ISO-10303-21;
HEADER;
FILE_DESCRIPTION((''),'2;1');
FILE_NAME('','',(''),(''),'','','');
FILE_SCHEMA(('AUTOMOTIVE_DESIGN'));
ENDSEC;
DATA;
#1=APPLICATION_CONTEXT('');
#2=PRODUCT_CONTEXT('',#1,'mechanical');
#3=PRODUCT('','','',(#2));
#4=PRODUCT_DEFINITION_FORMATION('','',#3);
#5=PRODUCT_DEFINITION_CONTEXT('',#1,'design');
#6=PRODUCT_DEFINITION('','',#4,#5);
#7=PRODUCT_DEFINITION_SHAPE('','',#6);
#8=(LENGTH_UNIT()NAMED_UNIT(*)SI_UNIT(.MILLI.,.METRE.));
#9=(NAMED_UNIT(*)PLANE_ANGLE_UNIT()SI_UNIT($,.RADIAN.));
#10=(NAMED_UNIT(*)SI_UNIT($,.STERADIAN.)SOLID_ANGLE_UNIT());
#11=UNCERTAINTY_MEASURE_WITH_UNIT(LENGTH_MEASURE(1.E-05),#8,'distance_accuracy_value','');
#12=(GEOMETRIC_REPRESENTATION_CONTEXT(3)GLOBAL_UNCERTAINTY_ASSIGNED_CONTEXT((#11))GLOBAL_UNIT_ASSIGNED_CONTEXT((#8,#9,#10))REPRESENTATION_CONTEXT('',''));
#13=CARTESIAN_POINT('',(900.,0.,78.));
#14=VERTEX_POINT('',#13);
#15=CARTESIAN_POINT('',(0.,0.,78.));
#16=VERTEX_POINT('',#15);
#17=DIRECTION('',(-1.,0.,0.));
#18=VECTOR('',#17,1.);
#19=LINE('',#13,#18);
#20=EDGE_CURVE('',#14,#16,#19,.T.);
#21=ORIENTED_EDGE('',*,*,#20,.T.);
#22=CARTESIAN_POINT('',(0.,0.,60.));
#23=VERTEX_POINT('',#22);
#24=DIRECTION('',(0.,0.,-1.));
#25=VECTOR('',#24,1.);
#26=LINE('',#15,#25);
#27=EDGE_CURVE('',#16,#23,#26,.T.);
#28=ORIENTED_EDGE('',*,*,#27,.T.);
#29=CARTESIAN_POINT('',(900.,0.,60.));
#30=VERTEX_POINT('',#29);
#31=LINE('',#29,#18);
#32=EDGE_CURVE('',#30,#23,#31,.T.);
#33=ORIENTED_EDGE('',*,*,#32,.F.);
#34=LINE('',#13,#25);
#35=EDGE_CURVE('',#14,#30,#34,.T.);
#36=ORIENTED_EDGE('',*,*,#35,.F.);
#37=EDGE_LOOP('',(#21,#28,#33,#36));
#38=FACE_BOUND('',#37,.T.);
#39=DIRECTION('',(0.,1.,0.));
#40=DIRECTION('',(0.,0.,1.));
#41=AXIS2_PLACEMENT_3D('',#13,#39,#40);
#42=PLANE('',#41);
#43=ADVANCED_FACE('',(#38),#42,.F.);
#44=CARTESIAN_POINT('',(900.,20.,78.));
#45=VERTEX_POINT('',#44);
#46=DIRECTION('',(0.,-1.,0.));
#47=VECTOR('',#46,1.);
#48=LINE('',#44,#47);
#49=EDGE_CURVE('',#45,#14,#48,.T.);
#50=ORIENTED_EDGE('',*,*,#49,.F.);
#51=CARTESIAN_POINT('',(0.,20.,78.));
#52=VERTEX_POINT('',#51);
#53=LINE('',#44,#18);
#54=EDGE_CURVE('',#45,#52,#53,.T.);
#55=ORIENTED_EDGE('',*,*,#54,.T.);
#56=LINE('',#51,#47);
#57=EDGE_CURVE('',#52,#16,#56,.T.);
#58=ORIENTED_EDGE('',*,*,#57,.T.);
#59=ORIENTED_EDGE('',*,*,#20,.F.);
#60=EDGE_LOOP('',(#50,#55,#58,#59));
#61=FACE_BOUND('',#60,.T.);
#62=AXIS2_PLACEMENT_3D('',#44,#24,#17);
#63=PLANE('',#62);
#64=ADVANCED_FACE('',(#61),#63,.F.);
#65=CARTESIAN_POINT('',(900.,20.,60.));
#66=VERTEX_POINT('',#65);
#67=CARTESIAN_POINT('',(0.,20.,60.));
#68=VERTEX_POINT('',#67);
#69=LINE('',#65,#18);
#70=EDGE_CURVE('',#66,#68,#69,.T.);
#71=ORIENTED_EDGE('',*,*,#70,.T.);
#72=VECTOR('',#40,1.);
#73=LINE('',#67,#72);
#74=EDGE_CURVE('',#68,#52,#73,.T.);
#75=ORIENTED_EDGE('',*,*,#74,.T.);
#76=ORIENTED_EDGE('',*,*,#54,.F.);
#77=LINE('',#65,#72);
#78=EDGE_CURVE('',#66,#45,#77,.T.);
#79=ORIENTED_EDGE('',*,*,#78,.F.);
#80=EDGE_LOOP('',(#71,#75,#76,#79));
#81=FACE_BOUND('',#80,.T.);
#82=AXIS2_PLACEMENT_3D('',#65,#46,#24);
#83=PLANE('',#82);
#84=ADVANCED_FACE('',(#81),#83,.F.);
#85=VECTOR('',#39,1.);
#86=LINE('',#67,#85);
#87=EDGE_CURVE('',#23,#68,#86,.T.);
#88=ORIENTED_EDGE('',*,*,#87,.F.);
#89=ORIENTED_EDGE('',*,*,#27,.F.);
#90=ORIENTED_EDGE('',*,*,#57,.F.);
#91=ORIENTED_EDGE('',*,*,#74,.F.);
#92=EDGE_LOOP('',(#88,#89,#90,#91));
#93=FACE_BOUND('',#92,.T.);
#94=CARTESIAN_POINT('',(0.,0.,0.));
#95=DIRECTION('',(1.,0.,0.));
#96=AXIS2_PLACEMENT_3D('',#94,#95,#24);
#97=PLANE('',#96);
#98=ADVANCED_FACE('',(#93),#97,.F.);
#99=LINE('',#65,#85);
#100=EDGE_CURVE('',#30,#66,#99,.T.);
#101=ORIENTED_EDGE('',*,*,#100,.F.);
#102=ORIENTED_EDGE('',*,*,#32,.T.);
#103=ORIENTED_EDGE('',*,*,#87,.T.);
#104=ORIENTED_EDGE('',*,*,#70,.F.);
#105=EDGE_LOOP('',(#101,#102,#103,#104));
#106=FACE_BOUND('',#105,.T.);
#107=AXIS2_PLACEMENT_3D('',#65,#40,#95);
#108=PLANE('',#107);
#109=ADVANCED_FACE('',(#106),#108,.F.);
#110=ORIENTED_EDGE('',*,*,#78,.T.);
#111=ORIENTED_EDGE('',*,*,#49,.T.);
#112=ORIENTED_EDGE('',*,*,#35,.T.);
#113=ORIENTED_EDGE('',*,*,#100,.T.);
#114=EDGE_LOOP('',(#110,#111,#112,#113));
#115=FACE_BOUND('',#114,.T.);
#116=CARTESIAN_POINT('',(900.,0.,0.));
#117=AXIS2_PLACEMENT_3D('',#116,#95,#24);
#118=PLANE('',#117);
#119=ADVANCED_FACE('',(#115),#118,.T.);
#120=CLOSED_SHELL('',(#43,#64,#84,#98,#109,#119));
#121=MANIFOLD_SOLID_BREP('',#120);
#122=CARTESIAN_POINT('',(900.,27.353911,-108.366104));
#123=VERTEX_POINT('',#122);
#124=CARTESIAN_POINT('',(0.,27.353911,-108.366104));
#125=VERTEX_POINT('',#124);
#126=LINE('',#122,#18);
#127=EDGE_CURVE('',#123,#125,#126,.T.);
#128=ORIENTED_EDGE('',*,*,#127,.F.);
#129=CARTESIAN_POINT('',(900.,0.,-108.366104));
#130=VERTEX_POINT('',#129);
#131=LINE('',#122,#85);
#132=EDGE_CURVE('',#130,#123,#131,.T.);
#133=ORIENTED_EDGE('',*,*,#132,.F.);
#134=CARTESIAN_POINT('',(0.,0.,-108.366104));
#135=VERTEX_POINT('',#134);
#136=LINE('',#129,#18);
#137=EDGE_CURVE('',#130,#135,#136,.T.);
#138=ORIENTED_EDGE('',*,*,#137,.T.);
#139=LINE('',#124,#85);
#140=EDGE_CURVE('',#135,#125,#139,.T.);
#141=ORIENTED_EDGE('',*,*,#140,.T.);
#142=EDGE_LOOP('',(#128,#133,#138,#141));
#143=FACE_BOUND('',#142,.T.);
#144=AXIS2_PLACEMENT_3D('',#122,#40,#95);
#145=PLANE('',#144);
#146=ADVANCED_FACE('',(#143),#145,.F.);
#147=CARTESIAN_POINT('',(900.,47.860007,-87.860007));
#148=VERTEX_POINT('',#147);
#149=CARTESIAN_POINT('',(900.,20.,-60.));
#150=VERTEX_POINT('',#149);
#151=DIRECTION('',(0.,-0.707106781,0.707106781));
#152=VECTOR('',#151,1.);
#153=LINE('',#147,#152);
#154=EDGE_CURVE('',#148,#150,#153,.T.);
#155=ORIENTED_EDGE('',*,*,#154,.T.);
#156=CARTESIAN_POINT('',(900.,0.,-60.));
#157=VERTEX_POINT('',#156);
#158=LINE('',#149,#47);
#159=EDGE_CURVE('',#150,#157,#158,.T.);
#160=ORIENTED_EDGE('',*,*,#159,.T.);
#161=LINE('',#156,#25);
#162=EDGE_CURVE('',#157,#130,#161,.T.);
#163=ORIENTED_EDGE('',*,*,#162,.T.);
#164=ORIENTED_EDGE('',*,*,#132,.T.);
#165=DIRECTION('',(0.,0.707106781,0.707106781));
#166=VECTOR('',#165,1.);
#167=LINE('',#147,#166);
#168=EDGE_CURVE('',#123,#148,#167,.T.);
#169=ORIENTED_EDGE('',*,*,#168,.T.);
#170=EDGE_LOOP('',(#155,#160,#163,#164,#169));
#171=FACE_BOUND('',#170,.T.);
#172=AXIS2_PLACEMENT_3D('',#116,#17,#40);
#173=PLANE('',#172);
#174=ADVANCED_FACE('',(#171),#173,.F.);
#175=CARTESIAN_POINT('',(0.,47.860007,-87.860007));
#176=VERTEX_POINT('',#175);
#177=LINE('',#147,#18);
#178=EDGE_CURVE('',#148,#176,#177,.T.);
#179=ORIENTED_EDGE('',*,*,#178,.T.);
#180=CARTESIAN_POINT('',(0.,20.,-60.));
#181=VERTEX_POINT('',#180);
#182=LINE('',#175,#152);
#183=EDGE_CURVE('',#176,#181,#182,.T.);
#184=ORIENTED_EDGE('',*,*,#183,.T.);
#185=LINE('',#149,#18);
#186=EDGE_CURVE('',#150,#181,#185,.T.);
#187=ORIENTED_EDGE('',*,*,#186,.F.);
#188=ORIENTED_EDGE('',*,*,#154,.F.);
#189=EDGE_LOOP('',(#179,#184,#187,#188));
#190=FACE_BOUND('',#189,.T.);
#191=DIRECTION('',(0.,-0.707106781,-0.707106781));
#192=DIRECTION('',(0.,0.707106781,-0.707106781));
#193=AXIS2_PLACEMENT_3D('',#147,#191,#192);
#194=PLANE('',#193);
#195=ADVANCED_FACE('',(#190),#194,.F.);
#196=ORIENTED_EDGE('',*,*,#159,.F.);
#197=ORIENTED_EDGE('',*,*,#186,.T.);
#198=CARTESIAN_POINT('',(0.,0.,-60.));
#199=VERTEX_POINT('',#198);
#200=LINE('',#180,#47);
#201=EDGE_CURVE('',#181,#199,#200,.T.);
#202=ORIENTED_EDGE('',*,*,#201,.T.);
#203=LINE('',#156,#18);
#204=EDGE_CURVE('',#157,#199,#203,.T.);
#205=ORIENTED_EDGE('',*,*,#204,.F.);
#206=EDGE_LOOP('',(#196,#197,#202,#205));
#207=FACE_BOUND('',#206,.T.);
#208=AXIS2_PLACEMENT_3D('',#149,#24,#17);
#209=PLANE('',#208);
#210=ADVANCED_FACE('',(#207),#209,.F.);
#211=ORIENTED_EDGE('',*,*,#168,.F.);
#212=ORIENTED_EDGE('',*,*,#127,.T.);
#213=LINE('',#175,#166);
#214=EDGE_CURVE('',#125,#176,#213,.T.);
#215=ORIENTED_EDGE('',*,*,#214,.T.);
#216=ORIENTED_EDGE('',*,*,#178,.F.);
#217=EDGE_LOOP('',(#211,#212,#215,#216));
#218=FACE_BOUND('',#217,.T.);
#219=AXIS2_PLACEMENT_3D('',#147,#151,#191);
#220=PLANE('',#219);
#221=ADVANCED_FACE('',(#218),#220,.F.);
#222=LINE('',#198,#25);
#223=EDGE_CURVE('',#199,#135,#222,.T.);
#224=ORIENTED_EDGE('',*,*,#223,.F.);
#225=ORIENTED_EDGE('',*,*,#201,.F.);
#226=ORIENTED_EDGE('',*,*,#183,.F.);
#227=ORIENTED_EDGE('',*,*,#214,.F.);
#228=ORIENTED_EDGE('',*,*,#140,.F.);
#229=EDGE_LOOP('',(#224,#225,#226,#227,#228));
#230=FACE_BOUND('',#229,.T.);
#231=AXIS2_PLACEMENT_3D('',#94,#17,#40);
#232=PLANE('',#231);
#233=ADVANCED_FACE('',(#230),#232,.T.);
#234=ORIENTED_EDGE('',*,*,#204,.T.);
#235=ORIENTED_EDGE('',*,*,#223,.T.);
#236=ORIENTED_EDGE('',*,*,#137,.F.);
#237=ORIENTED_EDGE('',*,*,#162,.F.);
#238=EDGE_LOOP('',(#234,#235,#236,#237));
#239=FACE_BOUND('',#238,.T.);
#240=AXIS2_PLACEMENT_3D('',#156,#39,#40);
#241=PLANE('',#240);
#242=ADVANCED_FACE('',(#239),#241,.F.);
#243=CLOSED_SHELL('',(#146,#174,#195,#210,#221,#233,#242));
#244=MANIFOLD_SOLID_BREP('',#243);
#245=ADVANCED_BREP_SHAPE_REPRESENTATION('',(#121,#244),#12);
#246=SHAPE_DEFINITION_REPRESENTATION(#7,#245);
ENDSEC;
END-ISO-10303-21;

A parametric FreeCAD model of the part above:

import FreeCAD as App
import Part
import Sketcher
Q = App.Units.Quantity


def add_polygon(sketch, points):
    """Adds a closed chain of lines whose ends are joined by coincident constraints."""
    first, n = sketch.GeometryCount, len(points)
    for a, b in zip(points, points[1:] + points[:1]):
        sketch.addGeometry(Part.LineSegment(App.Vector(*a, 0), App.Vector(*b, 0)), False)
    for i in range(n):
        sketch.addConstraint(Sketcher.Constraint("Coincident", first + i, 2, first + (i + 1) % n, 1))

doc = App.newDocument("Part")
body = doc.addObject("PartDesign::Body", "Body")

# Sketch on YZ plane
sketch1 = doc.addObject("Sketcher::SketchObject", "Sketch")
body.addObject(sketch1)
sketch1.AttachmentSupport = (doc.YZ_Plane, [""])
sketch1.MapMode = "FlatFace"
add_polygon(sketch1, [(20, 78), (0, 78), (0, 60), (20, 60)])  # lines 0-3
sketch1.addConstraint([
    Sketcher.Constraint("Horizontal", 0),
    Sketcher.Constraint("Vertical", 1),
    Sketcher.Constraint("Horizontal", 2),
    Sketcher.Constraint("Vertical", 3),
    Sketcher.Constraint("PointOnObject", 0, 2, -2),
    Sketcher.Constraint("DistanceX", 0, 2, 0, 1, 20.0),
    Sketcher.Constraint("DistanceY", 1, 2, 1, 1, 18.0),
    Sketcher.Constraint("DistanceY", -1, 1, 0, 2, 78.0),
])
pad1 = doc.addObject("PartDesign::Pad", "Pad")
body.addObject(pad1)
pad1.Profile = sketch1
pad1.Length = 900
body2 = doc.addObject("PartDesign::Body", "Body001")

# Sketch on YZ plane
sketch2 = doc.addObject("Sketcher::SketchObject", "Sketch001")
body2.addObject(sketch2)
sketch2.AttachmentSupport = (doc.getObject("YZ_Plane001"), [""])
sketch2.MapMode = "FlatFace"
add_polygon(sketch2, [(48, -88), (20, -60), (0, -60), (0, -108), (27, -108)])  # lines 0-4
sketch2.addConstraint([
    Sketcher.Constraint("Horizontal", 1),
    Sketcher.Constraint("Vertical", 2),
    Sketcher.Constraint("Horizontal", 3),
    Sketcher.Constraint("PointOnObject", 1, 2, -2),
    Sketcher.Constraint("Perpendicular", 0, 4),
    Sketcher.Constraint("DistanceX", 1, 2, 1, 1, 20.0),
    Sketcher.Constraint("Angle", 0, Q("135 deg")),
    Sketcher.Constraint("Distance", 4, 29.0),
    Sketcher.Constraint("DistanceY", 0, 2, -1, 1, 60.0),
    Sketcher.Constraint("Distance", 0, 39.4),
])
pad2 = doc.addObject("PartDesign::Pad", "Pad001")
body2.addObject(pad2)
pad2.Profile = sketch2
pad2.Length = 900

doc.recompute()
